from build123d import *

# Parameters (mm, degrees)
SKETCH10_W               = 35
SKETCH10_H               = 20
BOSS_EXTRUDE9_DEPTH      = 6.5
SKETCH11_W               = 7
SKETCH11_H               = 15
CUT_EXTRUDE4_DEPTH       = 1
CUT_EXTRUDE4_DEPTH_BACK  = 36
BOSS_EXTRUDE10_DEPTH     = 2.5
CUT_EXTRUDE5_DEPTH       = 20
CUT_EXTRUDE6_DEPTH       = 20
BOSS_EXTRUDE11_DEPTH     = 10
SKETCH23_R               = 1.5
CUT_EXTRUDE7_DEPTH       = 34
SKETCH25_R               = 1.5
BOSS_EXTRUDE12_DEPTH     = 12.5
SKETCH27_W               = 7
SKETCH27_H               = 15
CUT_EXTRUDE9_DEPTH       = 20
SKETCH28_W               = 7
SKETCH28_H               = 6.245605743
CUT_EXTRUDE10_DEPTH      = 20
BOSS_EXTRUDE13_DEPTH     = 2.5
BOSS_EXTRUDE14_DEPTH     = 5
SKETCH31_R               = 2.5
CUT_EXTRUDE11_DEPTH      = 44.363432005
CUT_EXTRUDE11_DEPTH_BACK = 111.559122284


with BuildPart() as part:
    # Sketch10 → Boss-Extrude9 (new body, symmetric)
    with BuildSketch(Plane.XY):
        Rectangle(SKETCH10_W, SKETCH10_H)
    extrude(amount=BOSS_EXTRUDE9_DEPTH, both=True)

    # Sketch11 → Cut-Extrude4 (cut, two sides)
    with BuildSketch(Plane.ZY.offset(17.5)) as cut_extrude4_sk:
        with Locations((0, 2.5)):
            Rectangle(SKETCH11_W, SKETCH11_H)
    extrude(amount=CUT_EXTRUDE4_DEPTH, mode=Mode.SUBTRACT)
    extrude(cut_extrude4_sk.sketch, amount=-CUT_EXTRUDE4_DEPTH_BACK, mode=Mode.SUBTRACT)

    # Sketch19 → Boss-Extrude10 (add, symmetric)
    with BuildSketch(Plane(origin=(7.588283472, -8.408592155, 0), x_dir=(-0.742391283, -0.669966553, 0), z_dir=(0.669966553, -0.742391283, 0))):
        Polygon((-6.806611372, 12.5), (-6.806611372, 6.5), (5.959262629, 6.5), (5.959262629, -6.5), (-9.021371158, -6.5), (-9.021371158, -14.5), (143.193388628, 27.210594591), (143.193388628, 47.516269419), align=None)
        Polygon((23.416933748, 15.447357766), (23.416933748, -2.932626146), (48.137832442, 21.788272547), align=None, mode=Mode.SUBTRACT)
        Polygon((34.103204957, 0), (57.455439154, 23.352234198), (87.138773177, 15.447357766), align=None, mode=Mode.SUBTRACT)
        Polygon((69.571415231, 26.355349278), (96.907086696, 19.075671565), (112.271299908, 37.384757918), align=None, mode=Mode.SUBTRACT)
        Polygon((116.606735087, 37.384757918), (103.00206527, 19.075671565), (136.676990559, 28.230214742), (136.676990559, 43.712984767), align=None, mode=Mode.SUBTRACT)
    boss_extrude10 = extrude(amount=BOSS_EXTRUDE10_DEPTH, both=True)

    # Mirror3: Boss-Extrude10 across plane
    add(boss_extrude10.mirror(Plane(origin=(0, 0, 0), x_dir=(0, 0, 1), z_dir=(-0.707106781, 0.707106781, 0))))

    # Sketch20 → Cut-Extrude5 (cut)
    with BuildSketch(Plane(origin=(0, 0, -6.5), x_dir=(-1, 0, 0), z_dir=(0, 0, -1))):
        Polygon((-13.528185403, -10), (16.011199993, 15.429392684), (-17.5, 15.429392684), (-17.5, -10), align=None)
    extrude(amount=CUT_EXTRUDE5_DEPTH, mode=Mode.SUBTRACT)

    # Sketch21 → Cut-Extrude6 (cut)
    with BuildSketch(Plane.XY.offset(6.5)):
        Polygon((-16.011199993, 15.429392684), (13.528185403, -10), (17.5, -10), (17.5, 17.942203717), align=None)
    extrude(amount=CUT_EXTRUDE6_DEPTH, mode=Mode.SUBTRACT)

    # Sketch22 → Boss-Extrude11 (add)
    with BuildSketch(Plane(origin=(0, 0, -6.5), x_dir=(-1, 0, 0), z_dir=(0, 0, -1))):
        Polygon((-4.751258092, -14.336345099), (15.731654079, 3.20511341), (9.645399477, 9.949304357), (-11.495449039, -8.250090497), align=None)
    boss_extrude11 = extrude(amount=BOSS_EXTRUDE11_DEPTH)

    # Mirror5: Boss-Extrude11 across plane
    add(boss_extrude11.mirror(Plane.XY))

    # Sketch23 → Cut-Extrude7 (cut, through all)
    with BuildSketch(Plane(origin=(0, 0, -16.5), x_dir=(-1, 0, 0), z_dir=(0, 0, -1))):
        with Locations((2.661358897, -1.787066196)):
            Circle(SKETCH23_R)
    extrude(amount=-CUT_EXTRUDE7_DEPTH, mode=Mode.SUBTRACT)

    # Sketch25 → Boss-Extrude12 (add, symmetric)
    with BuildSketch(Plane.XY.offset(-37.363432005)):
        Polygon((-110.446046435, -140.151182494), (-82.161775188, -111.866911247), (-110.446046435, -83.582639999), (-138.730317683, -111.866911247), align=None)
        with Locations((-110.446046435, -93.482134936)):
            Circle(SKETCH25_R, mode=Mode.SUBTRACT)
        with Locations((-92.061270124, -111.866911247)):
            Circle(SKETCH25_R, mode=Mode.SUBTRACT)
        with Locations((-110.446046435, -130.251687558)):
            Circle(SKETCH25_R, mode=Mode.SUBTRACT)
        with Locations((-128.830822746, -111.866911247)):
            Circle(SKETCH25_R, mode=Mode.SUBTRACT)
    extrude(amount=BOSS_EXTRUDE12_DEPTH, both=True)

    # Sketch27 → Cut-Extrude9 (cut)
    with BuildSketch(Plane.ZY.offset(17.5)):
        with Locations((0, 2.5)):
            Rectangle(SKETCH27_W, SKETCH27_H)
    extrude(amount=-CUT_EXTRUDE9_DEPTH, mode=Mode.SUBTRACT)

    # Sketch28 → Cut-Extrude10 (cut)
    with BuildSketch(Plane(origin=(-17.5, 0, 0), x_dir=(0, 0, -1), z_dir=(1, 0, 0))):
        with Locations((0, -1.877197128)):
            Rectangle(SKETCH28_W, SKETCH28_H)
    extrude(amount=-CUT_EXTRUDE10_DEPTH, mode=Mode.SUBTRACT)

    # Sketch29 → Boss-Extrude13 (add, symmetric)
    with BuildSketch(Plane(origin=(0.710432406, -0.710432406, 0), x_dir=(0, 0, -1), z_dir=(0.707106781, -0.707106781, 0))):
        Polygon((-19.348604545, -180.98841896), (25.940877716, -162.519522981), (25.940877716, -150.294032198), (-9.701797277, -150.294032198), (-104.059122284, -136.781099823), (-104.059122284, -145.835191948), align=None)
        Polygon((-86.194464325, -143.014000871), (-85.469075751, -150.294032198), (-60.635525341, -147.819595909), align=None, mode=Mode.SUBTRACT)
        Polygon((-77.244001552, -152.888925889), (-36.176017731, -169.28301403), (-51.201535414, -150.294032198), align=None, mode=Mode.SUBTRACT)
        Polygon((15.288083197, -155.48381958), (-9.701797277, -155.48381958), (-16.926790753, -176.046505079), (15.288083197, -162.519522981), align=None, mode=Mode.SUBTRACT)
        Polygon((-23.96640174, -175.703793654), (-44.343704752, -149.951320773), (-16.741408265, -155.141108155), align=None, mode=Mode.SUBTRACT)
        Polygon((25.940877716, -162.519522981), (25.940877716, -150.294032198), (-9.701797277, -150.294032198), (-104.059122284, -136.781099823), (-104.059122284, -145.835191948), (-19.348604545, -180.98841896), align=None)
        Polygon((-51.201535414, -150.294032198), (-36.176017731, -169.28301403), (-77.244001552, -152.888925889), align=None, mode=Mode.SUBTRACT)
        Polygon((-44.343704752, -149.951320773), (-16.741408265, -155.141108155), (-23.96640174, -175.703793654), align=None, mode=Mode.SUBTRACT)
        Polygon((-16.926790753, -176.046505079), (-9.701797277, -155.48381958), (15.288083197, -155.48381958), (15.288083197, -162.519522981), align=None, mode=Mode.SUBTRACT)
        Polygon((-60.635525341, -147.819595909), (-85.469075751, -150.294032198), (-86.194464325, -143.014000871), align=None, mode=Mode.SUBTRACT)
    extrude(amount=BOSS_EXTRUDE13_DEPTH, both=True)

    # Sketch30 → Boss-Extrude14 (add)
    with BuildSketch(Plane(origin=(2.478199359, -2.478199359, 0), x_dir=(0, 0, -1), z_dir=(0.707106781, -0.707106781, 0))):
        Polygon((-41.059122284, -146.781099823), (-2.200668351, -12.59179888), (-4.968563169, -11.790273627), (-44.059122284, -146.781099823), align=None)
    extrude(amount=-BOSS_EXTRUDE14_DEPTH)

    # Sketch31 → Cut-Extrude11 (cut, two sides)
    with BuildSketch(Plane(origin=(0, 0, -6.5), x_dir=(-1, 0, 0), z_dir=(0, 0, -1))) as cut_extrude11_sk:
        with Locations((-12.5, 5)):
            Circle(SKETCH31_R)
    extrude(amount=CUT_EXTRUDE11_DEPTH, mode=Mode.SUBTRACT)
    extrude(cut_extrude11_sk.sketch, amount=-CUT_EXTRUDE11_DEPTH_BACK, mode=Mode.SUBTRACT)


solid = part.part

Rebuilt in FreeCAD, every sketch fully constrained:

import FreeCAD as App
import Part
import Sketcher

V = App.Vector
Q = App.Units.Quantity


def add_polygon(sketch, points):
    """Adds a closed chain of lines whose ends are joined by coincident constraints."""
    first, n = sketch.GeometryCount, len(points)
    for a, b in zip(points, points[1:] + points[:1]):
        sketch.addGeometry(Part.LineSegment(App.Vector(*a, 0), App.Vector(*b, 0)), False)
    for i in range(n):
        sketch.addConstraint(Sketcher.Constraint("Coincident", first + i, 2, first + (i + 1) % n, 1))

doc = App.newDocument("Part")
params = doc.addObject("Spreadsheet::Sheet", "Params")
for row, (alias, value) in enumerate([
    ("sketch1_width", "35 mm"),
    ("sketch1_height", "20 mm"),
    ("pad1_length", "13 mm"),
    ("sketch2_width", "15 mm"),
    ("sketch2_height", "7 mm"),
    ("sketch3_height", "6 mm"),
    ("sketch3_height2", "13 mm"),
    ("sketch3_height3", "8 mm"),
    ("pad2_length", "5 mm"),
    ("pocket2_length", "20 mm"),
    ("pocket3_length", "20 mm"),
    ("pad3_length", "10 mm"),
    ("sketch7_diameter", "3 mm"),
    ("sketch8_diameter", "3 mm"),
    ("sketch8_length", "40 mm"),
    ("pad4_length", "25 mm"),
    ("sketch9_width", "15 mm"),
    ("sketch9_height", "7 mm"),
    ("pocket5_length", "20 mm"),
    ("sketch10_height", "7 mm"),
    ("pocket6_length", "20 mm"),
    ("pad5_length", "5 mm"),
    ("sketch12_width", "3 mm"),
    ("pad6_length", "5 mm"),
    ("sketch13_diameter", "5 mm"),
], start=1):
    params.set(f"A{row}", alias)
    params.set(f"B{row}", "=" + value)
    params.setAlias(f"B{row}", alias)

body = doc.addObject("PartDesign::Body", "Body")

sketch1 = doc.addObject("Sketcher::SketchObject", "Sketch")
body.addObject(sketch1)
sketch1.AttachmentSupport = (doc.XY_Plane, [""])
sketch1.MapMode = "FlatFace"
add_polygon(sketch1, [(-18, 10), (-18, -10), (18, -10), (18, 10)])
sketch1.addConstraint([
    Sketcher.Constraint("Vertical", 0),
    Sketcher.Constraint("Horizontal", 1),
    Sketcher.Constraint("Vertical", 2),
    Sketcher.Constraint("Horizontal", 3),
    Sketcher.Constraint("Symmetric", 0, 2, 2, 2, -1, 1),
    Sketcher.Constraint("DistanceX", 1, 1, 1, 2, Q("35 mm")),
    Sketcher.Constraint("DistanceY", 0, 2, 0, 1, Q("20 mm")),
])
sketch1.setExpression("Constraints[9]", "Params.sketch1_width")
sketch1.setExpression("Constraints[10]", "Params.sketch1_height")
pad1 = doc.addObject("PartDesign::Pad", "Pad")
body.addObject(pad1)
pad1.Profile = sketch1
pad1.setExpression("Length", "Params.pad1_length")
pad1.Midplane = True

sketch2 = doc.addObject("Sketcher::SketchObject", "Sketch001")
body.addObject(sketch2)
sketch2.AttachmentSupport = (doc.YZ_Plane, [""])
sketch2.MapMode = "FlatFace"
sketch2.AttachmentOffset = App.Placement(V(0, 0, -17.5), App.Rotation())
add_polygon(sketch2, [(10, -4), (-5, -4), (-5, 4), (10, 4)])
sketch2.addConstraint([
    Sketcher.Constraint("Horizontal", 0),
    Sketcher.Constraint("Vertical", 1),
    Sketcher.Constraint("Horizontal", 2),
    Sketcher.Constraint("Vertical", 3),
    Sketcher.Constraint("DistanceX", 0, 2, 0, 1, Q("15 mm")),
    Sketcher.Constraint("DistanceY", 1, 1, 1, 2, Q("7 mm")),
    Sketcher.Constraint("DistanceX", 0, 2, -1, 1, Q("5 mm")),
    Sketcher.Constraint("DistanceY", 0, 2, -1, 1, Q("3.5 mm")),
])
sketch2.setExpression("Constraints[8]", "Params.sketch2_width")
sketch2.setExpression("Constraints[9]", "Params.sketch2_height")
pocket1 = doc.addObject("PartDesign::Pocket", "Pocket")
body.addObject(pocket1)
pocket1.Profile = sketch2
pocket1.Type = "ThroughAll"
pocket1.Midplane = True

sketch3 = doc.addObject("Sketcher::SketchObject", "Sketch002")
body.addObject(sketch3)
sketch3.Placement = App.Placement(V(7.588283, -8.408592, 0), App.Rotation(V(-0.742391283, -0.669966553, 0), V(0, 0, -0.999999999), V(0.669966553, -0.742391283, 0), "ZXY"))
add_polygon(sketch3, [(-7, 12), (-7, 6), (6, 6), (6, -6), (-9, -6), (-9, -14), (143, 27), (143, 48)])
add_polygon(sketch3, [(23, -3), (23, 15), (48, 22)])
add_polygon(sketch3, [(87, 15), (34, 0), (57, 23)])
add_polygon(sketch3, [(97, 19), (70, 26), (112, 37)])
add_polygon(sketch3, [(103, 19), (117, 37), (137, 44), (137, 28)])
sketch3.addConstraint([
    Sketcher.Constraint("Vertical", 0),
    Sketcher.Constraint("Horizontal", 1),
    Sketcher.Constraint("Vertical", 2),
    Sketcher.Constraint("Horizontal", 3),
    Sketcher.Constraint("Vertical", 4),
    Sketcher.Constraint("Vertical", 6),
    Sketcher.Constraint("Vertical", 8),
    Sketcher.Constraint("Vertical", 19),
    Sketcher.Constraint("PointOnObject", 11, 2, -1),
    Sketcher.Constraint("Parallel", 10, 12),
    Sketcher.Constraint("Parallel", 13, 14),
    Sketcher.Constraint("Horizontal", 8, 2, 13, 2),
    Sketcher.Constraint("Horizontal", 15, 2, 17, 2),
    Sketcher.Constraint("Horizontal", 16, 2, 20, 2),
    Sketcher.Constraint("DistanceY", 0, 2, 0, 1, Q("6 mm")),
    Sketcher.Constraint("DistanceY", 2, 2, 2, 1, Q("13 mm")),
    Sketcher.Constraint("DistanceY", 4, 2, 4, 1, Q("8 mm")),
    Sketcher.Constraint("Angle", 10, Q("-135 deg")),
    Sketcher.Constraint("DistanceX", 0, 2, 5, 2, Q("150 mm")),
    Sketcher.Constraint("DistanceY", -1, 1, 0, 2, Q("6.5 mm")),
    Sketcher.Constraint("Distance", 16, Q("23.9015 mm")),
    Sketcher.Constraint("DistanceY", 19, 2, 19, 1, Q("15.48277 mm")),
    Sketcher.Constraint("DistanceX", -1, 1, 15, 2, Q("112.2713 mm")),
    Sketcher.Constraint("DistanceX", 8, 2, 9, 2, Q("24.720899 mm")),
    Sketcher.Constraint("DistanceY", 13, 2, 15, 2, Q("21.9374 mm")),
    Sketcher.Constraint("DistanceX", 16, 2, 5, 2, Q("46.286302 mm")),
    Sketcher.Constraint("DistanceX", 18, 2, 6, 2, Q("6.516398 mm")),
    Sketcher.Constraint("Distance", 5, Q("157.826192 mm")),
    Sketcher.Constraint("Distance", 9, Q("25.521168 mm")),
    Sketcher.Constraint("Distance", 11, Q("55.239409 mm")),
    Sketcher.Constraint("Distance", 20, Q("34.897081 mm")),
    Sketcher.Constraint("DistanceX", 1, 1, 1, 2, Q("12.765874 mm")),
    Sketcher.Constraint("DistanceX", 3, 2, 3, 1, Q("14.980634 mm")),
    Sketcher.Constraint("DistanceY", 6, 1, 6, 2, Q("20.305675 mm")),
    Sketcher.Constraint("DistanceX", 0, 2, -1, 1, Q("6.806611 mm")),
    Sketcher.Constraint("DistanceX", -1, 1, 12, 2, Q("57.455439 mm")),
    Sketcher.Constraint("DistanceY", -1, 1, 14, 2, Q("26.355349 mm")),
    Sketcher.Constraint("DistanceY", -1, 1, 16, 2, Q("19.075672 mm")),
    Sketcher.Constraint("DistanceX", 1, 2, 8, 2, Q("17.457671 mm")),
    Sketcher.Constraint("DistanceX", 10, 2, 11, 2, Q("10.686271 mm")),
    Sketcher.Constraint("DistanceX", 16, 2, 17, 2, Q("19.699648 mm")),
    Sketcher.Constraint("DistanceY", 5, 2, 18, 2, Q("16.50239 mm")),
])
sketch3.setExpression("Constraints[35]", "Params.sketch3_height")
sketch3.setExpression("Constraints[36]", "Params.sketch3_height2")
sketch3.setExpression("Constraints[37]", "Params.sketch3_height3")
pad2 = doc.addObject("PartDesign::Pad", "Pad001")
body.addObject(pad2)
pad2.Profile = sketch3
pad2.setExpression("Length", "Params.pad2_length")
pad2.Midplane = True
doc.recompute()

datumplane = doc.addObject("PartDesign::Plane", "DatumPlane")
body.addObject(datumplane)
datumplane.Placement = App.Placement(V(0, 0, 0), App.Rotation(V(0.707106781, 0.707106781, 0), V(0, 0, -1), V(-0.707106781, 0.707106781, 0), "ZXY"))
mirrored = doc.addObject("PartDesign::Mirrored", "Mirrored")
body.addObject(mirrored)
mirrored.Originals = [pad2]
mirrored.MirrorPlane = (datumplane, [""])
body.Tip = mirrored

sketch4 = doc.addObject("Sketcher::SketchObject", "Sketch003")
body.addObject(sketch4)
sketch4.AttachmentSupport = (doc.XY_Plane, [""])
sketch4.MapMode = "FlatFace"
sketch4.AttachmentOffset = App.Placement(V(0, 0, -6.5), App.Rotation())
add_polygon(sketch4, [(13.5, -10), (-16, 15.4), (17.5, 15.4), (17.5, -10)])
sketch4.addConstraint([
    Sketcher.Constraint("Horizontal", 1),
    Sketcher.Constraint("Vertical", 2),
    Sketcher.Constraint("Horizontal", 3),
    Sketcher.Constraint("DistanceY", 2, 2, -1, 1, Q("10 mm")),
    Sketcher.Constraint("DistanceX", -1, 1, 1, 2, Q("17.5 mm")),
    Sketcher.Constraint("DistanceX", 1, 1, 1, 2, Q("33.5112 mm")),
    Sketcher.Constraint("DistanceX", 3, 2, 3, 1, Q("3.971815 mm")),
    Sketcher.Constraint("DistanceY", 2, 2, 2, 1, Q("25.429393 mm")),
])
pocket2 = doc.addObject("PartDesign::Pocket", "Pocket001")
body.addObject(pocket2)
pocket2.Profile = sketch4
pocket2.setExpression("Length", "Params.pocket2_length")

sketch5 = doc.addObject("Sketcher::SketchObject", "Sketch004")
body.addObject(sketch5)
sketch5.AttachmentSupport = (doc.XY_Plane, [""])
sketch5.MapMode = "FlatFace"
sketch5.AttachmentOffset = App.Placement(V(0, 0, 6.5), App.Rotation())
add_polygon(sketch5, [(-16, 15.4), (13.5, -10), (17.5, -10), (17.5, 17.9)])
sketch5.addConstraint([
    Sketcher.Constraint("Horizontal", 1),
    Sketcher.Constraint("Vertical", 2),
    Sketcher.Constraint("DistanceY", 0, 2, -1, 1, Q("10 mm")),
    Sketcher.Constraint("DistanceX", -1, 1, 1, 2, Q("17.5 mm")),
    Sketcher.Constraint("DistanceX", 3, 2, -1, 1, Q("16.0112 mm")),
    Sketcher.Constraint("Distance", 3, Q("33.605279 mm")),
    Sketcher.Constraint("DistanceX", 1, 1, 1, 2, Q("3.971815 mm")),
    Sketcher.Constraint("DistanceY", 2, 1, 2, 2, Q("27.942204 mm")),
])
pocket3 = doc.addObject("PartDesign::Pocket", "Pocket002")
body.addObject(pocket3)
pocket3.Profile = sketch5
pocket3.setExpression("Length", "Params.pocket3_length")
pocket3.Reversed = True

sketch6 = doc.addObject("Sketcher::SketchObject", "Sketch005")
body.addObject(sketch6)
sketch6.AttachmentSupport = (doc.XY_Plane, [""])
sketch6.MapMode = "FlatFace"
sketch6.AttachmentOffset = App.Placement(V(0, 0, -6.5), App.Rotation())
add_polygon(sketch6, [(5, -14), (-16, 3), (-10, 10), (11, -8)])
sketch6.addConstraint([
    Sketcher.Constraint("Equal", 1, 3),
    Sketcher.Constraint("Distance", 2, Q("27.895402 mm")),
    Sketcher.Constraint("DistanceX", 1, 2, -1, 1, Q("9.645399 mm")),
    Sketcher.Constraint("Distance", 0, Q("26.967619 mm")),
    Sketcher.Constraint("DistanceX", -1, 1, 2, 2, Q("11.495449 mm")),
    Sketcher.Constraint("DistanceY", 2, 2, -1, 1, Q("8.25009 mm")),
    Sketcher.Constraint("DistanceX", -1, 1, 3, 2, Q("4.751258 mm")),
    Sketcher.Constraint("DistanceY", 0, 2, 1, 2, Q("6.744191 mm")),
])
pad3 = doc.addObject("PartDesign::Pad", "Pad002")
body.addObject(pad3)
pad3.Profile = sketch6
pad3.setExpression("Length", "Params.pad3_length")
pad3.Reversed = True
doc.recompute()

mirrored2 = doc.addObject("PartDesign::Mirrored", "Mirrored001")
body.addObject(mirrored2)
mirrored2.Originals = [pad3]
mirrored2.MirrorPlane = (doc.XY_Plane, [""])
body.Tip = mirrored2

sketch7 = doc.addObject("Sketcher::SketchObject", "Sketch006")
body.addObject(sketch7)
sketch7.AttachmentSupport = (doc.XY_Plane, [""])
sketch7.MapMode = "FlatFace"
sketch7.AttachmentOffset = App.Placement(V(0, 0, -16.5), App.Rotation())
sketch7.addGeometry(Part.Circle(V(-2.7, -1.8, 0), V(0, 0, 1), 1.5), False)
sketch7.addConstraint([
    Sketcher.Constraint("Diameter", 0, Q("3 mm")),
    Sketcher.Constraint("DistanceX", 0, 3, -1, 1, Q("2.661359 mm")),
    Sketcher.Constraint("DistanceY", 0, 3, -1, 1, Q("1.787066 mm")),
])
sketch7.setExpression("Constraints[0]", "Params.sketch7_diameter")
pocket4 = doc.addObject("PartDesign::Pocket", "Pocket003")
body.addObject(pocket4)
pocket4.Profile = sketch7
pocket4.Type = "ThroughAll"
pocket4.Reversed = True

sketch8 = doc.addObject("Sketcher::SketchObject", "Sketch007")
body.addObject(sketch8)
sketch8.AttachmentSupport = (doc.XY_Plane, [""])
sketch8.MapMode = "FlatFace"
sketch8.AttachmentOffset = App.Placement(V(0, 0, -37.363432), App.Rotation())
add_polygon(sketch8, [(-110.4, -140.2), (-82.2, -111.9), (-110.4, -83.6), (-138.7, -111.9)])
sketch8.addGeometry(Part.Circle(V(-128.8, -111.9, 0), V(0, 0, 1), 1.5), False)
sketch8.addGeometry(Part.Circle(V(-110.4, -130.3, 0), V(0, 0, 1), 1.5), False)
sketch8.addGeometry(Part.Circle(V(-92.1, -111.9, 0), V(0, 0, 1), 1.5), False)
sketch8.addGeometry(Part.Circle(V(-110.4, -93.5, 0), V(0, 0, 1), 1.5), False)
sketch8.addConstraint([
    Sketcher.Constraint("Equal", 4, 5),
    Sketcher.Constraint("Equal", 5, 6),
    Sketcher.Constraint("Equal", 6, 7),
    Sketcher.Constraint("Perpendicular", 0, 1),
    Sketcher.Constraint("Perpendicular", 1, 2),
    Sketcher.Constraint("Perpendicular", 2, 3),
    Sketcher.Constraint("Horizontal", 4, 3, 6, 3),
    Sketcher.Constraint("Horizontal", 6, 3, 0, 2),
    Sketcher.Constraint("Horizontal", 0, 2, 2, 2),
    Sketcher.Constraint("Vertical", 5, 3, 7, 3),
    Sketcher.Constraint("Vertical", 7, 3, 1, 2),
    Sketcher.Constraint("Vertical", 1, 2, 3, 2),
    Sketcher.Constraint("Diameter", 4, Q("3 mm")),
    Sketcher.Constraint("Distance", 0, Q("40 mm")),
    Sketcher.Constraint("DistanceY", 4, 3, -1, 1, Q("111.866911 mm")),
    Sketcher.Constraint("DistanceX", 6, 3, -1, 1, Q("92.06127 mm")),
    Sketcher.Constraint("DistanceX", 4, 3, -1, 1, Q("128.830823 mm")),
    Sketcher.Constraint("DistanceX", 5, 3, -1, 1, Q("110.446046 mm")),
    Sketcher.Constraint("DistanceY", 5, 3, -1, 1, Q("130.251688 mm")),
    Sketcher.Constraint("DistanceY", 7, 3, -1, 1, Q("93.482135 mm")),
])
sketch8.setExpression("Constraints[16]", "Params.sketch8_diameter")
sketch8.setExpression("Constraints[17]", "Params.sketch8_length")
pad4 = doc.addObject("PartDesign::Pad", "Pad003")
body.addObject(pad4)
pad4.Profile = sketch8
pad4.setExpression("Length", "Params.pad4_length")
pad4.Midplane = True

sketch9 = doc.addObject("Sketcher::SketchObject", "Sketch008")
body.addObject(sketch9)
sketch9.AttachmentSupport = (doc.YZ_Plane, [""])
sketch9.MapMode = "FlatFace"
sketch9.AttachmentOffset = App.Placement(V(0, 0, -17.5), App.Rotation())
add_polygon(sketch9, [(10, -4), (-5, -4), (-5, 4), (10, 4)])
sketch9.addConstraint([
    Sketcher.Constraint("Horizontal", 0),
    Sketcher.Constraint("Vertical", 1),
    Sketcher.Constraint("Horizontal", 2),
    Sketcher.Constraint("Vertical", 3),
    Sketcher.Constraint("DistanceX", 0, 2, 0, 1, Q("15 mm")),
    Sketcher.Constraint("DistanceY", 1, 1, 1, 2, Q("7 mm")),
    Sketcher.Constraint("DistanceX", 0, 2, -1, 1, Q("5 mm")),
    Sketcher.Constraint("DistanceY", 0, 2, -1, 1, Q("3.5 mm")),
])
sketch9.setExpression("Constraints[8]", "Params.sketch9_width")
sketch9.setExpression("Constraints[9]", "Params.sketch9_height")
pocket5 = doc.addObject("PartDesign::Pocket", "Pocket004")
body.addObject(pocket5)
pocket5.Profile = sketch9
pocket5.setExpression("Length", "Params.pocket5_length")
pocket5.Reversed = True

sketch10 = doc.addObject("Sketcher::SketchObject", "Sketch009")
body.addObject(sketch10)
sketch10.AttachmentSupport = (doc.YZ_Plane, [""])
sketch10.MapMode = "FlatFace"
sketch10.AttachmentOffset = App.Placement(V(0, 0, -17.5), App.Rotation())
add_polygon(sketch10, [(1, 4), (-5, 4), (-5, -4), (1, -4)])
sketch10.addConstraint([
    Sketcher.Constraint("Horizontal", 0),
    Sketcher.Constraint("Vertical", 1),
    Sketcher.Constraint("Horizontal", 2),
    Sketcher.Constraint("Vertical", 3),
    Sketcher.Constraint("DistanceY", 1, 2, 1, 1, Q("7 mm")),
    Sketcher.Constraint("DistanceX", 0, 2, -1, 1, Q("5 mm")),
    Sketcher.Constraint("DistanceY", -1, 1, 0, 2, Q("3.5 mm")),
    Sketcher.Constraint("DistanceX", 0, 2, 0, 1, Q("6.245606 mm")),
])
sketch10.setExpression("Constraints[8]", "Params.sketch10_height")
pocket6 = doc.addObject("PartDesign::Pocket", "Pocket005")
body.addObject(pocket6)
pocket6.Profile = sketch10
pocket6.setExpression("Length", "Params.pocket6_length")

sketch11 = doc.addObject("Sketcher::SketchObject", "Sketch010")
body.addObject(sketch11)
sketch11.Placement = App.Placement(V(0.710432, -0.710432, 0), App.Rotation(V(0, 0, -1), V(0.707106781, 0.707106781, 0), V(0.707106781, -0.707106781, 0), "ZXY"))
add_polygon(sketch11, [(-19, -181), (26, -163), (26, -150), (-10, -150), (-104, -137), (-104, -146)])
add_polygon(sketch11, [(-77, -153), (-51, -150), (-36, -169)])
add_polygon(sketch11, [(-24, -176), (-44, -150), (-17, -155)])
add_polygon(sketch11, [(15, -163), (-17, -176), (-10, -155), (15, -155)])
add_polygon(sketch11, [(-86, -143), (-61, -148), (-85, -150)])
sketch11.addConstraint([
    Sketcher.Constraint("Vertical", 1),
    Sketcher.Constraint("Horizontal", 2),
    Sketcher.Constraint("Vertical", 4),
    Sketcher.Constraint("Horizontal", 14),
    Sketcher.Constraint("Vertical", 15),
    Sketcher.Constraint("Parallel", 7, 9),
    Sketcher.Constraint("Parallel", 11, 13),
    Sketcher.Constraint("Parallel", 10, 16),
    Sketcher.Constraint("Parallel", 6, 17),
    Sketcher.Constraint("Perpendicular", 17, 18),
    Sketcher.Constraint("Horizontal", 2, 2, 6, 2),
    Sketcher.Constraint("Horizontal", 0, 2, 15, 2),
    Sketcher.Constraint("Horizontal", 6, 2, 17, 2),
    Sketcher.Constraint("Vertical", 2, 2, 13, 2),
    Sketcher.Constraint("Equal", 11, 13),
    Sketcher.Constraint("DistanceX", 3, 2, 1, 2, Q("130 mm")),
    Sketcher.Constraint("DistanceX", 8, 2, -1, 1, Q("77.244002 mm")),
    Sketcher.Constraint("DistanceY", 18, 2, -1, 1, Q("143.014001 mm")),
    Sketcher.Constraint("DistanceX", 14, 1, 14, 2, Q("24.98988 mm")),
    Sketcher.Constraint("DistanceY", 1, 1, 1, 2, Q("12.225491 mm")),
    Sketcher.Constraint("DistanceY", 3, 2, -1, 1, Q("136.7811 mm")),
    Sketcher.Constraint("DistanceX", 11, 2, -1, 1, Q("23.966402 mm")),
    Sketcher.Constraint("DistanceX", 9, 2, 5, 2, Q("24.9951 mm")),
    Sketcher.Constraint("DistanceY", 5, 2, 9, 2, Q("31.037098 mm")),
    Sketcher.Constraint("DistanceY", 5, 2, 13, 2, Q("25.504599 mm")),
    Sketcher.Constraint("Distance", 3, Q("95.320009 mm")),
    Sketcher.Constraint("Distance", 5, Q("91.714891 mm")),
    Sketcher.Constraint("Distance", 9, Q("32.839372 mm")),
    Sketcher.Constraint("Distance", 10, Q("28.085951 mm")),
    Sketcher.Constraint("Distance", 11, Q("21.795058 mm")),
    Sketcher.Constraint("Distance", 16, Q("26.00679 mm")),
    Sketcher.Constraint("Distance", 18, Q("7.316081 mm")),
    Sketcher.Constraint("DistanceY", 4, 2, 4, 1, Q("9.054092 mm")),
    Sketcher.Constraint("DistanceY", 15, 2, 15, 1, Q("7.035703 mm")),
    Sketcher.Constraint("DistanceY", 5, 2, -1, 1, Q("180.988419 mm")),
    Sketcher.Constraint("DistanceX", 6, 2, 2, 2, Q("41.499738 mm")),
    Sketcher.Constraint("DistanceY", 7, 2, 6, 2, Q("18.988982 mm")),
    Sketcher.Constraint("DistanceX", 16, 2, 6, 2, Q("9.43399 mm")),
])
pad5 = doc.addObject("PartDesign::Pad", "Pad004")
body.addObject(pad5)
pad5.Profile = sketch11
pad5.setExpression("Length", "Params.pad5_length")
pad5.Midplane = True

sketch12 = doc.addObject("Sketcher::SketchObject", "Sketch011")
body.addObject(sketch12)
sketch12.Placement = App.Placement(V(2.478199, -2.478199, 0), App.Rotation(V(0, 0, -1), V(0.707106781, 0.707106781, 0), V(0.707106781, -0.707106781, 0), "ZXY"))
add_polygon(sketch12, [(-41.059122, -146.7811), (-2.200668, -12.591799), (-4.968563, -11.790274), (-44.059122, -146.7811)])
sketch12.addConstraint([
    Sketcher.Constraint("Horizontal", 3),
    Sketcher.Constraint("DistanceX", 3, 1, 3, 2, Q("3 mm")),
    Sketcher.Constraint("DistanceY", 0, 2, -1, 1, Q("12.591799 mm")),
    Sketcher.Constraint("DistanceY", 2, 2, -1, 1, Q("146.7811 mm")),
    Sketcher.Constraint("Distance", 1, Q("2.881611 mm")),
    Sketcher.Constraint("Distance", 2, Q("140.53681 mm")),
    Sketcher.Constraint("DistanceX", 0, 2, -1, 1, Q("2.200668 mm")),
    Sketcher.Constraint("DistanceX", 2, 2, 1, 2, Q("39.090559 mm")),
])
sketch12.setExpression("Constraints[5]", "Params.sketch12_width")
pad6 = doc.addObject("PartDesign::Pad", "Pad005")
body.addObject(pad6)
pad6.Profile = sketch12
pad6.setExpression("Length", "Params.pad6_length")
pad6.Reversed = True

sketch13 = doc.addObject("Sketcher::SketchObject", "Sketch012")
body.addObject(sketch13)
sketch13.AttachmentSupport = (doc.XY_Plane, [""])
sketch13.MapMode = "FlatFace"
sketch13.AttachmentOffset = App.Placement(V(0, 0, -6.5), App.Rotation())
sketch13.addGeometry(Part.Circle(V(12.5, 5, 0), V(0, 0, 1), 2.5), False)
sketch13.addConstraint([
    Sketcher.Constraint("Diameter", 0, Q("5 mm")),
    Sketcher.Constraint("DistanceY", -1, 1, 0, 3, Q("5 mm")),
    Sketcher.Constraint("DistanceX", -1, 1, 0, 3, Q("12.5 mm")),
])
sketch13.setExpression("Constraints[0]", "Params.sketch13_diameter")
pocket7 = doc.addObject("PartDesign::Pocket", "Pocket006")
body.addObject(pocket7)
pocket7.Profile = sketch13
pocket7.Type = "ThroughAll"
pocket7.Midplane = True

doc.recompute()
